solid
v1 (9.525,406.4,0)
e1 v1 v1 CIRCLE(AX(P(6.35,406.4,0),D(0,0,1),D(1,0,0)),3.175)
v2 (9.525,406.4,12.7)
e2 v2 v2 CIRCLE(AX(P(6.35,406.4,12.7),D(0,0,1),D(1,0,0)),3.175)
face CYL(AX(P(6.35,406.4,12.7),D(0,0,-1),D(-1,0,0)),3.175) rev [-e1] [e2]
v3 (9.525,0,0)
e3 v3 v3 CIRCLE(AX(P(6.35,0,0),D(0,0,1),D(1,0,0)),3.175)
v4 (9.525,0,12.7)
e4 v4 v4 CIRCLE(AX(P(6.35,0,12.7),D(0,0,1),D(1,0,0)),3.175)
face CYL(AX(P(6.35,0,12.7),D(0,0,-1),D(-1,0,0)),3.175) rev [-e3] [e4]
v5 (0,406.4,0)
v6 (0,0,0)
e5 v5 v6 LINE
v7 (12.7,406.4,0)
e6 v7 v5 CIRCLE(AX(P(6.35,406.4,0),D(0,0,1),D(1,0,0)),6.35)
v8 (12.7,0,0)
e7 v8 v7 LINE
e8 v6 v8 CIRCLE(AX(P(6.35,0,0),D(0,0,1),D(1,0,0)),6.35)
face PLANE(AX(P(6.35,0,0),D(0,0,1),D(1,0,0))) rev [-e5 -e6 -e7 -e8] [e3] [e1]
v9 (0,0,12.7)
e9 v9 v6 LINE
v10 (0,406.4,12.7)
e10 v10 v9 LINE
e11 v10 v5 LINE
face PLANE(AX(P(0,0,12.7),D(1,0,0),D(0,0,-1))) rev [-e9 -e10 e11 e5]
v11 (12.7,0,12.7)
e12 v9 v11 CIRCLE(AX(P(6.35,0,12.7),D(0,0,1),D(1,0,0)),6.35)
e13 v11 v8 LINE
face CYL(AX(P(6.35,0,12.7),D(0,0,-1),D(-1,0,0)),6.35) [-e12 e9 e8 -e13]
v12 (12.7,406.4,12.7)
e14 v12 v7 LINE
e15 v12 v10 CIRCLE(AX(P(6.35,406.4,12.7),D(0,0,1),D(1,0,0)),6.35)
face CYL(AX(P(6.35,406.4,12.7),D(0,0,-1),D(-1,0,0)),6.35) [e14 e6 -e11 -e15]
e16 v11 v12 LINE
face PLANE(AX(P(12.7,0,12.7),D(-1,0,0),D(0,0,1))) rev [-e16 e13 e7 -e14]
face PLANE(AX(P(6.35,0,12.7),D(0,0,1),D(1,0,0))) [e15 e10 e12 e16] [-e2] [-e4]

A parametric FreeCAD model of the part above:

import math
import FreeCAD as App
import Part
import Sketcher
Q = App.Units.Quantity

doc = App.newDocument("Part")
body = doc.addObject("PartDesign::Body", "Body")

sketch1 = body.newObject("Sketcher::SketchObject", "Sketch")
sketch1.AttachmentSupport = (doc.getObject("XY_Plane"), [""])
sketch1.MapMode = "FlatFace"
sketch1.addGeometry(Part.LineSegment(App.Vector(0, 406.4, 0), App.Vector(0, 0, 0)), False)
sketch1.addGeometry(Part.ArcOfCircle(Part.Circle(App.Vector(6.3, 0, 0), App.Vector(0, 0, 1), 6.3), math.radians(180), math.radians(360)), False)
sketch1.addGeometry(Part.LineSegment(App.Vector(12.7, 0, 0), App.Vector(12.7, 406.4, 0)), False)
sketch1.addGeometry(Part.ArcOfCircle(Part.Circle(App.Vector(6.3, 406.4, 0), App.Vector(0, 0, 1), 6.3), math.radians(0), math.radians(180)), False)
sketch1.addGeometry(Part.Circle(App.Vector(6.3, 0, 0), App.Vector(0, 0, 1), 3.2), False)
sketch1.addGeometry(Part.Circle(App.Vector(6.3, 406.4, 0), App.Vector(0, 0, 1), 3.2), False)
sketch1.addConstraint(Sketcher.Constraint("Tangent", 0, 2, 1, 1))
sketch1.addConstraint(Sketcher.Constraint("Tangent", 1, 2, 2, 1))
sketch1.addConstraint(Sketcher.Constraint("Tangent", 2, 2, 3, 1))
sketch1.addConstraint(Sketcher.Constraint("Tangent", 3, 2, 0, 1))
sketch1.addConstraint(Sketcher.Constraint("Vertical", 0))
sketch1.addConstraint(Sketcher.Constraint("Vertical", 2))
sketch1.addConstraint(Sketcher.Constraint("Coincident", 0, 2, -1, 1))
sketch1.addConstraint(Sketcher.Constraint("Coincident", 4, 3, 1, 3))
sketch1.addConstraint(Sketcher.Constraint("Coincident", 5, 3, 3, 3))
sketch1.addConstraint(Sketcher.Constraint("Equal", 4, 5))
sketch1.addConstraint(Sketcher.Constraint("Diameter", 4, Q("0.25 in")))
sketch1.addConstraint(Sketcher.Constraint("DistanceY", 0, 2, 0, 1, Q("16 in")))
sketch1.addConstraint(Sketcher.Constraint("Radius", 1, Q("0.25 in")))
pad1 = body.newObject("PartDesign::Pad", "Pad")
pad1.Profile = sketch1
pad1.Length = Q("0.5 in")

doc.recompute()
